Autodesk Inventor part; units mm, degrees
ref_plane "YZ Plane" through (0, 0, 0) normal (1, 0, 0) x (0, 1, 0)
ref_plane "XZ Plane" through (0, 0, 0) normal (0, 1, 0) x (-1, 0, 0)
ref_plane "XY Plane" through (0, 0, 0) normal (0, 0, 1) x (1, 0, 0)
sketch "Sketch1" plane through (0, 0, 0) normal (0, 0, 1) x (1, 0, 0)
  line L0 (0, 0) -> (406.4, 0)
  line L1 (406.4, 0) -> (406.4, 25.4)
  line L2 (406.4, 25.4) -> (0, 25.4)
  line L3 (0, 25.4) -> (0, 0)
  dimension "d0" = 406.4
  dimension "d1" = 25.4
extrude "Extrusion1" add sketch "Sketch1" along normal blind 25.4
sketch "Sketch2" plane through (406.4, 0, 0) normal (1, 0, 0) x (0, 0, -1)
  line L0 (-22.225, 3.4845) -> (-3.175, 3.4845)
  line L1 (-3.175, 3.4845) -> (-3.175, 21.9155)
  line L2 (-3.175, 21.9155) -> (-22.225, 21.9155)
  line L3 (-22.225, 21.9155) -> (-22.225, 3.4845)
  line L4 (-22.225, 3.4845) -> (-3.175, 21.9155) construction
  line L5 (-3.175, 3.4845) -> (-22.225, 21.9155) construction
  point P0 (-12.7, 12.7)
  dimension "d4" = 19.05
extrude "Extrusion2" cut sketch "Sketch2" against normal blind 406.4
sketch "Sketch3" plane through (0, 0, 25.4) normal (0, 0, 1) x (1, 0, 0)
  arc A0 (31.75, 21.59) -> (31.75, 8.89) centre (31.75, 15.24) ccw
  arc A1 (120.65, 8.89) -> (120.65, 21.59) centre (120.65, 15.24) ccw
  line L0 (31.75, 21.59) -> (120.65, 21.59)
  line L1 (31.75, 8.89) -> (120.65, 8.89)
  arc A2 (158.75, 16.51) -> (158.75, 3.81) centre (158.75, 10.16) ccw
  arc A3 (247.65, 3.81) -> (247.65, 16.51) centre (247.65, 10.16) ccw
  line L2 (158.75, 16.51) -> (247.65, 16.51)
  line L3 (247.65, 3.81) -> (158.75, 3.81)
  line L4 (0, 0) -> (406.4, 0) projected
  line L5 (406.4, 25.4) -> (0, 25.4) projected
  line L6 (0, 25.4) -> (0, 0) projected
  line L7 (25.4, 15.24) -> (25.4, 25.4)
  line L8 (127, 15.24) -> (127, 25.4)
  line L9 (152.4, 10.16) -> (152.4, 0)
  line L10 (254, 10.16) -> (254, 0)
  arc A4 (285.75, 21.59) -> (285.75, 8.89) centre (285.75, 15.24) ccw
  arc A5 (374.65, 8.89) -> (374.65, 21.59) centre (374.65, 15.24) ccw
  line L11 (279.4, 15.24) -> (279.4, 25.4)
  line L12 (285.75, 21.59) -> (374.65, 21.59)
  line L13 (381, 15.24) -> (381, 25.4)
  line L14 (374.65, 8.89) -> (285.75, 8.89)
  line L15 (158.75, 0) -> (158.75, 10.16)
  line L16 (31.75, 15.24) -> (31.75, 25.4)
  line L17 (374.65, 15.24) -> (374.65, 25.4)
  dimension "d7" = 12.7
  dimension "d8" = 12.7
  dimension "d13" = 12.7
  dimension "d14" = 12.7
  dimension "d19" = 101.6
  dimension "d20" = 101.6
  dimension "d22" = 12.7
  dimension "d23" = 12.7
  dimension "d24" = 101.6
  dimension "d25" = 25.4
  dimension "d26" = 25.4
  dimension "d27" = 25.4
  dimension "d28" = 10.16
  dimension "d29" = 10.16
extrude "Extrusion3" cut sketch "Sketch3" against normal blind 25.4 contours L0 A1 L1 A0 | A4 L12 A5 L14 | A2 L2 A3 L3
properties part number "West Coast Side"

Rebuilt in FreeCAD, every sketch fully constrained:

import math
import FreeCAD as App
import Part
import Sketcher
from FreeCAD import Vector
Q = App.Units.Quantity


def add_polygon(sketch, points):
    """Adds a closed chain of lines whose ends are joined by coincident constraints."""
    first, n = sketch.GeometryCount, len(points)
    for a, b in zip(points, points[1:] + points[:1]):
        sketch.addGeometry(Part.LineSegment(App.Vector(*a, 0), App.Vector(*b, 0)), False)
    for i in range(n):
        sketch.addConstraint(Sketcher.Constraint("Coincident", first + i, 2, first + (i + 1) % n, 1))

doc = App.newDocument("Part")
body = doc.addObject("PartDesign::Body", "Body")

# Sketch on XY plane
sketch1 = doc.addObject("Sketcher::SketchObject", "Sketch")
body.addObject(sketch1)
sketch1.AttachmentSupport = (doc.XY_Plane, [""])
sketch1.MapMode = "FlatFace"
add_polygon(sketch1, [(0, 25), (0, 0), (406, 0), (406, 25)])  # lines 0-3
sketch1.addConstraint(Sketcher.Constraint("Vertical", 0))
sketch1.addConstraint(Sketcher.Constraint("Horizontal", 1))
sketch1.addConstraint(Sketcher.Constraint("Vertical", 2))
sketch1.addConstraint(Sketcher.Constraint("Horizontal", 3))
sketch1.addConstraint(Sketcher.Constraint("Coincident", 0, 2, -1, 1))
sketch1.addConstraint(Sketcher.Constraint("DistanceX", 1, 1, 1, 2, Q("16 in")))
sketch1.addConstraint(Sketcher.Constraint("DistanceY", 0, 2, 0, 1, Q("1 in")))
pad1 = doc.addObject("PartDesign::Pad", "Pad")
body.addObject(pad1)
pad1.Profile = sketch1
pad1.Length = Q("1 in")

# Sketch on YZ plane
sketch2 = doc.addObject("Sketcher::SketchObject", "Sketch001")
body.addObject(sketch2)
sketch2.AttachmentSupport = (doc.YZ_Plane, [""])
sketch2.MapMode = "FlatFace"
sketch2.AttachmentOffset = App.Placement(Vector(0, 0, 16 * 25.4), App.Rotation())
add_polygon(sketch2, [(22, 22), (3, 22), (3, 3), (22, 3)])  # lines 0-3
sketch2.addConstraint(Sketcher.Constraint("Horizontal", 0))
sketch2.addConstraint(Sketcher.Constraint("Vertical", 1))
sketch2.addConstraint(Sketcher.Constraint("Horizontal", 2))
sketch2.addConstraint(Sketcher.Constraint("Vertical", 3))
sketch2.addConstraint(Sketcher.Constraint("DistanceY", 1, 2, 1, 1, Q("0.75 in")))
sketch2.addConstraint(Sketcher.Constraint("DistanceY", -1, 1, 0, 2, Q("0.875 in")))
sketch2.addConstraint(Sketcher.Constraint("DistanceX", 0, 2, 0, 1, Q("18.431 mm")))
sketch2.addConstraint(Sketcher.Constraint("DistanceX", -1, 1, 0, 2, Q("3.4845 mm")))
pocket1 = doc.addObject("PartDesign::Pocket", "Pocket")
body.addObject(pocket1)
pocket1.Profile = sketch2
pocket1.Length = Q("16 in")

# Sketch on XY plane
sketch3 = doc.addObject("Sketcher::SketchObject", "Sketch002")
body.addObject(sketch3)
sketch3.AttachmentSupport = (doc.XY_Plane, [""])
sketch3.MapMode = "FlatFace"
sketch3.AttachmentOffset = App.Placement(Vector(0, 0, 1 * 25.4), App.Rotation())
sketch3.addGeometry(Part.LineSegment(Vector(121, 22, 0), Vector(32, 22, 0)), False)
sketch3.addGeometry(Part.ArcOfCircle(Part.Circle(Vector(32, 15, 0), Vector(0, 0, 1), 6), math.radians(90), math.radians(270)), False)
sketch3.addGeometry(Part.LineSegment(Vector(32, 9, 0), Vector(121, 9, 0)), False)
sketch3.addGeometry(Part.ArcOfCircle(Part.Circle(Vector(121, 15, 0), Vector(0, 0, 1), 6), math.radians(-90), math.radians(90)), False)
sketch3.addGeometry(Part.ArcOfCircle(Part.Circle(Vector(286, 15, 0), Vector(0, 0, 1), 6), math.radians(90), math.radians(270)), False)
sketch3.addGeometry(Part.LineSegment(Vector(286, 9, 0), Vector(375, 9, 0)), False)
sketch3.addGeometry(Part.ArcOfCircle(Part.Circle(Vector(375, 15, 0), Vector(0, 0, 1), 6), math.radians(-90), math.radians(90)), False)
sketch3.addGeometry(Part.LineSegment(Vector(375, 22, 0), Vector(286, 22, 0)), False)
sketch3.addGeometry(Part.ArcOfCircle(Part.Circle(Vector(159, 10, 0), Vector(0, 0, 1), 6), math.radians(90), math.radians(270)), False)
sketch3.addGeometry(Part.LineSegment(Vector(159, 4, 0), Vector(248, 4, 0)), False)
sketch3.addGeometry(Part.ArcOfCircle(Part.Circle(Vector(248, 10, 0), Vector(0, 0, 1), 6), math.radians(-90), math.radians(90)), False)
sketch3.addGeometry(Part.LineSegment(Vector(248, 17, 0), Vector(159, 17, 0)), False)
sketch3.addConstraint(Sketcher.Constraint("Tangent", 0, 2, 1, 1))
sketch3.addConstraint(Sketcher.Constraint("Tangent", 1, 2, 2, 1))
sketch3.addConstraint(Sketcher.Constraint("Tangent", 2, 2, 3, 1))
sketch3.addConstraint(Sketcher.Constraint("Tangent", 3, 2, 0, 1))
sketch3.addConstraint(Sketcher.Constraint("Tangent", 4, 2, 5, 1))
sketch3.addConstraint(Sketcher.Constraint("Tangent", 5, 2, 6, 1))
sketch3.addConstraint(Sketcher.Constraint("Tangent", 6, 2, 7, 1))
sketch3.addConstraint(Sketcher.Constraint("Tangent", 7, 2, 4, 1))
sketch3.addConstraint(Sketcher.Constraint("Tangent", 8, 2, 9, 1))
sketch3.addConstraint(Sketcher.Constraint("Tangent", 9, 2, 10, 1))
sketch3.addConstraint(Sketcher.Constraint("Tangent", 10, 2, 11, 1))
sketch3.addConstraint(Sketcher.Constraint("Tangent", 11, 2, 8, 1))
sketch3.addConstraint(Sketcher.Constraint("Horizontal", 0))
sketch3.addConstraint(Sketcher.Constraint("Horizontal", 2))
sketch3.addConstraint(Sketcher.Constraint("Horizontal", 5))
sketch3.addConstraint(Sketcher.Constraint("Horizontal", 7))
sketch3.addConstraint(Sketcher.Constraint("Horizontal", 9))
sketch3.addConstraint(Sketcher.Constraint("Horizontal", 11))
sketch3.addConstraint(Sketcher.Constraint("Equal", 3, 4))
sketch3.addConstraint(Sketcher.Constraint("Equal", 6, 8))
sketch3.addConstraint(Sketcher.Constraint("Horizontal", 3, 3, 4, 3))
sketch3.addConstraint(Sketcher.Constraint("Equal", 2, 5))
sketch3.addConstraint(Sketcher.Constraint("Equal", 7, 9))
sketch3.addConstraint(Sketcher.Constraint("Radius", 1, Q("0.25 in")))
sketch3.addConstraint(Sketcher.Constraint("DistanceY", -1, 1, 8, 3, Q("0.4 in")))
sketch3.addConstraint(Sketcher.Constraint("DistanceX", 0, 2, 0, 1, Q("3.5 in")))
sketch3.addConstraint(Sketcher.Constraint("DistanceX", 1, 3, 4, 3, Q("10 in")))
sketch3.addConstraint(Sketcher.Constraint("DistanceX", 1, 3, 8, 3, Q("5 in")))
sketch3.addConstraint(Sketcher.Constraint("DistanceY", -1, 1, 1, 3, Q("0.6 in")))
sketch3.addConstraint(Sketcher.Constraint("DistanceX", -1, 1, 1, 3, Q("1.25 in")))
pocket2 = doc.addObject("PartDesign::Pocket", "Pocket001")
body.addObject(pocket2)
pocket2.Profile = sketch3
pocket2.Length = Q("1 in")

doc.recompute()
